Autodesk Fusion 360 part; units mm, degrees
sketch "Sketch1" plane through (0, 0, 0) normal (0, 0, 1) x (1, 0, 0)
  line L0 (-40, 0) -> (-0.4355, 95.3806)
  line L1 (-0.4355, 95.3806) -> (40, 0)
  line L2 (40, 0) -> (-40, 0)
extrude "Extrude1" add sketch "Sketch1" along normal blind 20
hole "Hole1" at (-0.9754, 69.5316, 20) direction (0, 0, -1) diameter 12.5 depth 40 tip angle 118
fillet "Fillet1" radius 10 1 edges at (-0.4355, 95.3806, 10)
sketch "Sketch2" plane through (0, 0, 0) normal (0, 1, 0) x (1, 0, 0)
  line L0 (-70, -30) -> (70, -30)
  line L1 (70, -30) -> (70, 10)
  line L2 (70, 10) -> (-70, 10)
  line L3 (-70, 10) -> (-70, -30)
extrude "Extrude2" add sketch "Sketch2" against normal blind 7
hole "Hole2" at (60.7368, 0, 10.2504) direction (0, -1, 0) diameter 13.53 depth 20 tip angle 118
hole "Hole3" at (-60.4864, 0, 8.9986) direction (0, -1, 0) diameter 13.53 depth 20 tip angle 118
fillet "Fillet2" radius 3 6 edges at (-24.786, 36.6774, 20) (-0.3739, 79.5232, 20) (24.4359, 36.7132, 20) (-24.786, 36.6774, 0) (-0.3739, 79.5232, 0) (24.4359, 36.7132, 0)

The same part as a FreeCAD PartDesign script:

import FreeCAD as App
import Part
import Sketcher

V = App.Vector
Q = App.Units.Quantity


def edges_at(feature, points):
    """Names of the edges that pass closest to the given points."""
    edges = feature.Shape.Edges
    near = lambda p: min(range(len(edges)), key=lambda i: edges[i].distToShape(Part.Vertex(*p))[0])
    return sorted({f"Edge{near(p) + 1}" for p in points})


def add_polygon(sketch, points):
    """Adds a closed chain of lines whose ends are joined by coincident constraints."""
    first, n = sketch.GeometryCount, len(points)
    for a, b in zip(points, points[1:] + points[:1]):
        sketch.addGeometry(Part.LineSegment(App.Vector(*a, 0), App.Vector(*b, 0)), False)
    for i in range(n):
        sketch.addConstraint(Sketcher.Constraint("Coincident", first + i, 2, first + (i + 1) % n, 1))

doc = App.newDocument("Part")
body = doc.addObject("PartDesign::Body", "Body")

sketch1 = doc.addObject("Sketcher::SketchObject", "Sketch")
body.addObject(sketch1)
sketch1.AttachmentSupport = (doc.XY_Plane, [""])
sketch1.MapMode = "FlatFace"
add_polygon(sketch1, [(0, 95), (-40, 0), (40, 0)])
sketch1.addConstraint([
    Sketcher.Constraint("Horizontal", 1),
    Sketcher.Constraint("Symmetric", 0, 2, 1, 2, -1, 1),
    Sketcher.Constraint("DistanceX", 1, 1, 1, 2, 80.0),
    Sketcher.Constraint("Angle", 0, Q("-112.529 deg")),
    Sketcher.Constraint("Distance", 0, 103.2609),
])
pad1 = doc.addObject("PartDesign::Pad", "Pad")
body.addObject(pad1)
pad1.Profile = sketch1
pad1.Length = 20

sketch2 = doc.addObject("Sketcher::SketchObject", "Sketch001")
body.addObject(sketch2)
sketch2.AttachmentSupport = (doc.XY_Plane, [""])
sketch2.MapMode = "FlatFace"
sketch2.AttachmentOffset = App.Placement(V(0, 0, 20), App.Rotation())
sketch2.addGeometry(Part.Circle(V(-1, 70, 0), V(0, 0, 1), 6), False)
sketch2.addConstraint([
    Sketcher.Constraint("Diameter", 0, 12.5),
    Sketcher.Constraint("DistanceX", 0, 3, -1, 1, 0.9754),
    Sketcher.Constraint("DistanceY", -1, 1, 0, 3, 69.5316),
])
doc.recompute()
hole = doc.addObject("PartDesign::Hole", "Hole")
body.addObject(hole)
hole.Profile = sketch2
hole.ThreadType = "None"
hole.Diameter = 12.5
hole.DepthType = "Dimension"
hole.Depth = 40
hole.DrillPoint = "Angled"
hole.DrillPointAngle = 118
doc.recompute()

fillet = doc.addObject("PartDesign::Fillet", "Fillet")
body.addObject(fillet)
fillet.Base = (hole, edges_at(hole, [(-0.435, 95.381, 10)]))
fillet.Radius = 10

sketch3 = doc.addObject("Sketcher::SketchObject", "Sketch002")
body.addObject(sketch3)
sketch3.AttachmentSupport = (doc.XZ_Plane, [""])
sketch3.MapMode = "FlatFace"
add_polygon(sketch3, [(-70, -10), (-70, 30), (70, 30), (70, -10)])
sketch3.addConstraint([
    Sketcher.Constraint("Vertical", 0),
    Sketcher.Constraint("Horizontal", 1),
    Sketcher.Constraint("Vertical", 2),
    Sketcher.Constraint("Horizontal", 3),
    Sketcher.Constraint("DistanceX", 1, 1, 1, 2, 140.0),
    Sketcher.Constraint("DistanceY", 0, 1, 0, 2, 40.0),
    Sketcher.Constraint("DistanceX", 0, 2, -1, 1, 70.0),
    Sketcher.Constraint("DistanceY", -1, 1, 0, 2, 30.0),
])
pad2 = doc.addObject("PartDesign::Pad", "Pad001")
body.addObject(pad2)
pad2.Profile = sketch3
pad2.Length = 7

sketch4 = doc.addObject("Sketcher::SketchObject", "Sketch003")
body.addObject(sketch4)
sketch4.AttachmentSupport = (doc.XZ_Plane, [""])
sketch4.MapMode = "FlatFace"
sketch4.addGeometry(Part.Circle(V(61, 10, 0), V(0, 0, 1), 7), False)
sketch4.addConstraint([
    Sketcher.Constraint("Diameter", 0, 13.53),
    Sketcher.Constraint("DistanceX", -1, 1, 0, 3, 60.7368),
    Sketcher.Constraint("DistanceY", -1, 1, 0, 3, 10.2504),
])
doc.recompute()
hole2 = doc.addObject("PartDesign::Hole", "Hole001")
body.addObject(hole2)
hole2.Profile = sketch4
hole2.ThreadType = "None"
hole2.Diameter = 13.53
hole2.DepthType = "Dimension"
hole2.Depth = 20
hole2.DrillPoint = "Angled"
hole2.DrillPointAngle = 118
hole2.Reversed = True

sketch5 = doc.addObject("Sketcher::SketchObject", "Sketch004")
body.addObject(sketch5)
sketch5.AttachmentSupport = (doc.XZ_Plane, [""])
sketch5.MapMode = "FlatFace"
sketch5.addGeometry(Part.Circle(V(-60, 9, 0), V(0, 0, 1), 7), False)
sketch5.addConstraint([
    Sketcher.Constraint("Diameter", 0, 13.53),
    Sketcher.Constraint("DistanceX", 0, 3, -1, 1, 60.4864),
    Sketcher.Constraint("DistanceY", -1, 1, 0, 3, 8.9986),
])
doc.recompute()
hole3 = doc.addObject("PartDesign::Hole", "Hole002")
body.addObject(hole3)
hole3.Profile = sketch5
hole3.ThreadType = "None"
hole3.Diameter = 13.53
hole3.DepthType = "Dimension"
hole3.Depth = 20
hole3.DrillPoint = "Angled"
hole3.DrillPointAngle = 118
hole3.Reversed = True
doc.recompute()

fillet2 = doc.addObject("PartDesign::Fillet", "Fillet001")
body.addObject(fillet2)
fillet2.Base = (hole3, edges_at(hole3, [
    (-24.786, 36.677, 20),
    (-0.374, 79.523, 20),
    (24.436, 36.713, 20),
    (-24.786, 36.677, 0),
    (-0.374, 79.523, 0),
    (24.436, 36.713, 0),
]))
fillet2.Radius = 3

doc.recompute()
